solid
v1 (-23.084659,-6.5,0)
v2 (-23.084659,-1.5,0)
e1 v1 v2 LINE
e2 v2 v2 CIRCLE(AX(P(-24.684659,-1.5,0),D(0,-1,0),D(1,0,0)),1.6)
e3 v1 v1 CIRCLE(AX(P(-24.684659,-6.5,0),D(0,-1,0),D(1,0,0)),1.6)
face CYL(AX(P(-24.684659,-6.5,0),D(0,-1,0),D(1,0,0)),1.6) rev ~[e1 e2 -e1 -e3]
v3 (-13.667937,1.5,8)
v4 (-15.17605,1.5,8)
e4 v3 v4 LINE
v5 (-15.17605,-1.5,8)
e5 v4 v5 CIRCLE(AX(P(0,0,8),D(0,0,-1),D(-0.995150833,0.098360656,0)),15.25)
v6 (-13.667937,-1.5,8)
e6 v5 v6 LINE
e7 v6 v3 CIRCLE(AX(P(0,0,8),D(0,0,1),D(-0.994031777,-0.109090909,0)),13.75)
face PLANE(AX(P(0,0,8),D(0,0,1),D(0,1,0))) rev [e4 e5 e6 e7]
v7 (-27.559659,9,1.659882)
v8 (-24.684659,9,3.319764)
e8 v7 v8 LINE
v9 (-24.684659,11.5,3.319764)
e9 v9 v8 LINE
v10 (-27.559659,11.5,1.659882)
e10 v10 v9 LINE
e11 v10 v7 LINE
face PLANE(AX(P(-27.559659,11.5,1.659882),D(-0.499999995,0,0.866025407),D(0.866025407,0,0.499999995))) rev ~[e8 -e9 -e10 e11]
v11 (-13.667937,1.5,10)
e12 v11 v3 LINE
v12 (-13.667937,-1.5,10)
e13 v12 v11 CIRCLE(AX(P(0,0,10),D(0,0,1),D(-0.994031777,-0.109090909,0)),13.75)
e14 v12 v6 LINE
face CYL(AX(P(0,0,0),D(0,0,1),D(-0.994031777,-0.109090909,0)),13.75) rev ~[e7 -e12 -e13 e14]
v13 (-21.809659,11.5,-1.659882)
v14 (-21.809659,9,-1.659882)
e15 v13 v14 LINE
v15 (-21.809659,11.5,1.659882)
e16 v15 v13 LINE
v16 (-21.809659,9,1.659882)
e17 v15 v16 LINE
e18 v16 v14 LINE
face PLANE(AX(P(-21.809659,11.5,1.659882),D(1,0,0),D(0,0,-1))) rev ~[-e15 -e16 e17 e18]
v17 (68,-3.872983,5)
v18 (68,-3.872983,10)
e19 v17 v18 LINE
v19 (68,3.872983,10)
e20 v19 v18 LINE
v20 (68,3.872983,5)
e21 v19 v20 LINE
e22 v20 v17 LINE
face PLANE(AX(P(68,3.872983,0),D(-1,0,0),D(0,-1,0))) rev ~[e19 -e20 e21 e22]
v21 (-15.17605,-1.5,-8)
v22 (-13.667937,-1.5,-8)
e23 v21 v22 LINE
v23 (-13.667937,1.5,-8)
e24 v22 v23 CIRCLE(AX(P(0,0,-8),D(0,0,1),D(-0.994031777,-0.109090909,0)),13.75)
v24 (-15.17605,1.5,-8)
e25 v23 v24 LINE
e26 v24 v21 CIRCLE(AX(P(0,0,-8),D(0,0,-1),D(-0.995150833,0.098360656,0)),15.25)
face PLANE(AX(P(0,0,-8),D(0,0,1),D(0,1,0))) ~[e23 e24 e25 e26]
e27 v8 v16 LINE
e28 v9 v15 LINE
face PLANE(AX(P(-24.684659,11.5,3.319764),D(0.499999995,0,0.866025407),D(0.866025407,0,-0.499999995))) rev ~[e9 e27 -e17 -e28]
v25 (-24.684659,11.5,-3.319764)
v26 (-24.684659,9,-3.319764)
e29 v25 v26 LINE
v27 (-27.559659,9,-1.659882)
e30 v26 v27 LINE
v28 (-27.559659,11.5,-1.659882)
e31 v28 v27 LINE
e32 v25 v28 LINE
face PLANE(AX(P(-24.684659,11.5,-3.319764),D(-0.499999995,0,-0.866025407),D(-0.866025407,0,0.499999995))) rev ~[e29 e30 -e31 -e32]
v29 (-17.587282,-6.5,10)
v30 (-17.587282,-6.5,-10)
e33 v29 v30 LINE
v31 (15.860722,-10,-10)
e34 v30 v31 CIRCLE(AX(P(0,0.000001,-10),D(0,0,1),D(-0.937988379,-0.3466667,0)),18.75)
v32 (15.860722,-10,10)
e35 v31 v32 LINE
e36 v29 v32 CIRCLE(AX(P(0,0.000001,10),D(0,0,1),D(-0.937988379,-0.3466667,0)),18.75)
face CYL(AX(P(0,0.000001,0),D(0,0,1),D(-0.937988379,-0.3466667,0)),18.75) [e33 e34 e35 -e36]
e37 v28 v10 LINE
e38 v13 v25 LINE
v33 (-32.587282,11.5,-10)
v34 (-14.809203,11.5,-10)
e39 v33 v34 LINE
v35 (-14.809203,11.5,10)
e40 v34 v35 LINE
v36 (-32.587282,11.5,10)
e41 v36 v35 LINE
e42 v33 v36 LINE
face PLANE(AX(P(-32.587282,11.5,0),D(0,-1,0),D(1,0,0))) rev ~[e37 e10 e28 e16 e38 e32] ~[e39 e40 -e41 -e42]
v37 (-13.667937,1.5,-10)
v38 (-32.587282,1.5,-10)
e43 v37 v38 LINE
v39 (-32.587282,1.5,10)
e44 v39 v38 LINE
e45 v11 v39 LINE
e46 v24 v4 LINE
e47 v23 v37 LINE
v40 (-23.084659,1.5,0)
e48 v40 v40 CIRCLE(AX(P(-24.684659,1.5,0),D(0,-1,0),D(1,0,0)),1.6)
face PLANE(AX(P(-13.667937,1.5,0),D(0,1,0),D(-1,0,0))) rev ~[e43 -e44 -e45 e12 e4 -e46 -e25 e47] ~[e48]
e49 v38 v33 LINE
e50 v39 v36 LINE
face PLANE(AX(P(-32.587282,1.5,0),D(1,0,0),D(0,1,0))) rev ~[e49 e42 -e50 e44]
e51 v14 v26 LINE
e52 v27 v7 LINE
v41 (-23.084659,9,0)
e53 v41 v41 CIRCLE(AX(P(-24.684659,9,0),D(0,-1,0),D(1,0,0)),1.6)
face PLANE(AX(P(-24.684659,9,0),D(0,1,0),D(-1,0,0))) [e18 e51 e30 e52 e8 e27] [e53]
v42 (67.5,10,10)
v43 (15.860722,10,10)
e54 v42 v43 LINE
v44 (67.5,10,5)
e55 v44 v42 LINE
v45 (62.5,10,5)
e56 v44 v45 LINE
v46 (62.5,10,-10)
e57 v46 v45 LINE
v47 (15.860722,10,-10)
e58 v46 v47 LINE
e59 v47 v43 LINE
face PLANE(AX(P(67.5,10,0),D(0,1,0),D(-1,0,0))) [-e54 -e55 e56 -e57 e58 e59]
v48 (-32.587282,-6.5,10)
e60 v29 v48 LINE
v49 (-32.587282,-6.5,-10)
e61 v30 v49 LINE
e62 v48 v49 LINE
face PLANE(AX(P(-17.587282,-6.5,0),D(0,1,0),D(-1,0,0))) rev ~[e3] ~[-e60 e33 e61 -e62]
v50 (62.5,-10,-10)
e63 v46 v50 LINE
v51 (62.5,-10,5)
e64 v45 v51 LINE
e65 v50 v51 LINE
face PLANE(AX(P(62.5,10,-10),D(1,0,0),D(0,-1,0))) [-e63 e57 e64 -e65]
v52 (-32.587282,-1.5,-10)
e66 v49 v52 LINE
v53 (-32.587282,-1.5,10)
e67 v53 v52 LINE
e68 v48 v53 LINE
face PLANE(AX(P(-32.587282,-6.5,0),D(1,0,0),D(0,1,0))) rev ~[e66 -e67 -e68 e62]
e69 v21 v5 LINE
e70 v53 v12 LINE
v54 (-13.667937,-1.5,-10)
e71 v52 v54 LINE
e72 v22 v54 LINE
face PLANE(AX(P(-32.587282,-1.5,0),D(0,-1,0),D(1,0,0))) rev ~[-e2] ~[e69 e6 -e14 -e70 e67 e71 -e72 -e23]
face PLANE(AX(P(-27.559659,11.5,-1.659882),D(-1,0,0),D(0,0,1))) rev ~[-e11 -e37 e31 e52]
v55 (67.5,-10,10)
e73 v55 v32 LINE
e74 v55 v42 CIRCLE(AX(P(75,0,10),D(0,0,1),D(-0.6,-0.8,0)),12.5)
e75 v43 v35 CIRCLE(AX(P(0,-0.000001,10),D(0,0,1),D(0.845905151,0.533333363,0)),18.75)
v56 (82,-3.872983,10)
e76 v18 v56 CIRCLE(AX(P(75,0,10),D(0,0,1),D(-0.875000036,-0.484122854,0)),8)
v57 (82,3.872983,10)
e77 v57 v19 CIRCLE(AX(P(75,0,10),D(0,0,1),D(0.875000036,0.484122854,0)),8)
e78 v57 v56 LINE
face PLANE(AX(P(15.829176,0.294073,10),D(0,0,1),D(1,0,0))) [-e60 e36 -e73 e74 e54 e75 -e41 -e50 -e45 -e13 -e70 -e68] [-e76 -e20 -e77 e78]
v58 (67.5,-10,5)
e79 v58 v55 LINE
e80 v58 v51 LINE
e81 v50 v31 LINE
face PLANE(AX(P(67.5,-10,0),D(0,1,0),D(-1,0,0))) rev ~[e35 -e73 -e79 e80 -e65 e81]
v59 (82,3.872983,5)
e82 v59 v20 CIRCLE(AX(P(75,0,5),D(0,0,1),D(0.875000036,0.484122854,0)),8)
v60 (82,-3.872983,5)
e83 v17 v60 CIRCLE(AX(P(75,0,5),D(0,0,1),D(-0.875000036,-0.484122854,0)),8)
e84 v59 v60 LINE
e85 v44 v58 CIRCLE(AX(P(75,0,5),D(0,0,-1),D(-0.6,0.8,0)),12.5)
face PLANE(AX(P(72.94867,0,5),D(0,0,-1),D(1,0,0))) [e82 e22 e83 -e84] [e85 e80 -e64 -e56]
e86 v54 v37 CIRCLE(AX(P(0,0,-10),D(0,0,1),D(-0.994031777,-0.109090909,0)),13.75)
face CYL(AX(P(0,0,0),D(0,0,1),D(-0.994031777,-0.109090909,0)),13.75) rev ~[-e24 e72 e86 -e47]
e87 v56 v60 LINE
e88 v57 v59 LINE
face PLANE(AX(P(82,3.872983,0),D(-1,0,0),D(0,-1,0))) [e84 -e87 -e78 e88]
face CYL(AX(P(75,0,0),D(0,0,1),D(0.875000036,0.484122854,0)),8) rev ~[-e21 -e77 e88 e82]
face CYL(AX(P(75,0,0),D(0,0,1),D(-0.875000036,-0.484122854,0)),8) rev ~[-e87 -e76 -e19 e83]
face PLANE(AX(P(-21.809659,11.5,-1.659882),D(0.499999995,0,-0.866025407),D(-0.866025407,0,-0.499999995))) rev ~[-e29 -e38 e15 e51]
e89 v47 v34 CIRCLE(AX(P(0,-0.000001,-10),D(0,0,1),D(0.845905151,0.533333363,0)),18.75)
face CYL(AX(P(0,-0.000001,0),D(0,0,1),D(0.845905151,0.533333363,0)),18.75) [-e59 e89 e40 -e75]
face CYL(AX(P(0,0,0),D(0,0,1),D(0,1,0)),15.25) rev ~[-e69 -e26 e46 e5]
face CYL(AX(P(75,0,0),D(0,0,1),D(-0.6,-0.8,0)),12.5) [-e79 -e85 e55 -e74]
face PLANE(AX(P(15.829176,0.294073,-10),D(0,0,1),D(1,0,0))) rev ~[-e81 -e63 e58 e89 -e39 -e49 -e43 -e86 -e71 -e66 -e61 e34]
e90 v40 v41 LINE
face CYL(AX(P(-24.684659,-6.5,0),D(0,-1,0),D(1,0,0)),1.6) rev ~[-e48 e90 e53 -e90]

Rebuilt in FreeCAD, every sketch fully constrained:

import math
import FreeCAD as App
import Part
import Sketcher
from FreeCAD import Vector
Q = App.Units.Quantity

doc = App.newDocument("Part")
body = doc.addObject("PartDesign::Body", "Body")

sketch1 = doc.addObject("Sketcher::SketchObject", "Sketch")
body.addObject(sketch1)
sketch1.AttachmentSupport = (doc.XY_Plane, [""])
sketch1.MapMode = "FlatFace"
sketch1.addGeometry(Part.ArcOfCircle(Part.Circle(Vector(0, 0, 0), Vector(0, 0, 1), 18.8), math.radians(-160), math.radians(-32)), False)
sketch1.addGeometry(Part.LineSegment(Vector(15.9, -10, 0), Vector(67.5, -10, 0)), False)
sketch1.addGeometry(Part.ArcOfCircle(Part.Circle(Vector(75, 0, 0), Vector(0, 0, 1), 12.5), math.radians(-127), math.radians(127)), False)
sketch1.addGeometry(Part.LineSegment(Vector(67.5, 10, 0), Vector(15.9, 10, 0)), False)
sketch1.addGeometry(Part.ArcOfCircle(Part.Circle(Vector(0, 0, 0), Vector(0, 0, 1), 18.8), math.radians(32), math.radians(142)), False)
sketch1.addGeometry(Part.LineSegment(Vector(-14.8, 11.5, 0), Vector(-32.6, 11.5, 0)), False)
sketch1.addGeometry(Part.LineSegment(Vector(-32.6, 11.5, 0), Vector(-32.6, 1.5, 0)), False)
sketch1.addGeometry(Part.LineSegment(Vector(-32.6, 1.5, 0), Vector(-13.7, 1.5, 0)), False)
sketch1.addGeometry(Part.ArcOfCircle(Part.Circle(Vector(0, 0, 0), Vector(0, 0, 1), 13.8), math.radians(-174), math.radians(174)), False)
sketch1.addGeometry(Part.LineSegment(Vector(-13.7, -1.5, 0), Vector(-32.6, -1.5, 0)), False)
sketch1.addGeometry(Part.LineSegment(Vector(-32.6, -1.5, 0), Vector(-32.6, -6.5, 0)), False)
sketch1.addGeometry(Part.LineSegment(Vector(-32.6, -6.5, 0), Vector(-17.6, -6.5, 0)), False)
sketch1.addGeometry(Part.ArcOfCircle(Part.Circle(Vector(75, 0, 0), Vector(0, 0, 1), 8), math.radians(-151), math.radians(-29)), False)
sketch1.addGeometry(Part.LineSegment(Vector(68, -3.9, 0), Vector(68, 3.9, 0)), False)
sketch1.addGeometry(Part.ArcOfCircle(Part.Circle(Vector(75, 0, 0), Vector(0, 0, 1), 8), math.radians(29), math.radians(151)), False)
sketch1.addGeometry(Part.LineSegment(Vector(82, 3.9, 0), Vector(82, -3.9, 0)), False)
sketch1.addConstraint(Sketcher.Constraint("Coincident", 0, 2, 1, 1))
sketch1.addConstraint(Sketcher.Constraint("Coincident", 1, 2, 2, 1))
sketch1.addConstraint(Sketcher.Constraint("Coincident", 2, 2, 3, 1))
sketch1.addConstraint(Sketcher.Constraint("Coincident", 3, 2, 4, 1))
sketch1.addConstraint(Sketcher.Constraint("Coincident", 4, 2, 5, 1))
sketch1.addConstraint(Sketcher.Constraint("Coincident", 5, 2, 6, 1))
sketch1.addConstraint(Sketcher.Constraint("Coincident", 6, 2, 7, 1))
sketch1.addConstraint(Sketcher.Constraint("Coincident", 7, 2, 8, 2))
sketch1.addConstraint(Sketcher.Constraint("Coincident", 8, 1, 9, 1))
sketch1.addConstraint(Sketcher.Constraint("Coincident", 9, 2, 10, 1))
sketch1.addConstraint(Sketcher.Constraint("Coincident", 10, 2, 11, 1))
sketch1.addConstraint(Sketcher.Constraint("Coincident", 11, 2, 0, 1))
sketch1.addConstraint(Sketcher.Constraint("Coincident", 12, 1, 13, 1))
sketch1.addConstraint(Sketcher.Constraint("Coincident", 13, 2, 14, 2))
sketch1.addConstraint(Sketcher.Constraint("Coincident", 14, 1, 15, 1))
sketch1.addConstraint(Sketcher.Constraint("Coincident", 15, 2, 12, 2))
sketch1.addConstraint(Sketcher.Constraint("Horizontal", 1))
sketch1.addConstraint(Sketcher.Constraint("Horizontal", 3))
sketch1.addConstraint(Sketcher.Constraint("Horizontal", 5))
sketch1.addConstraint(Sketcher.Constraint("Vertical", 6))
sketch1.addConstraint(Sketcher.Constraint("Horizontal", 7))
sketch1.addConstraint(Sketcher.Constraint("Horizontal", 9))
sketch1.addConstraint(Sketcher.Constraint("Vertical", 10))
sketch1.addConstraint(Sketcher.Constraint("Horizontal", 11))
sketch1.addConstraint(Sketcher.Constraint("Vertical", 13))
sketch1.addConstraint(Sketcher.Constraint("Vertical", 15))
sketch1.addConstraint(Sketcher.Constraint("Coincident", 0, 3, -1, 1))
sketch1.addConstraint(Sketcher.Constraint("Coincident", 4, 3, -1, 1))
sketch1.addConstraint(Sketcher.Constraint("Coincident", 8, 3, -1, 1))
sketch1.addConstraint(Sketcher.Constraint("Coincident", 12, 3, 2, 3))
sketch1.addConstraint(Sketcher.Constraint("Coincident", 14, 3, 2, 3))
sketch1.addConstraint(Sketcher.Constraint("Equal", 0, 4))
sketch1.addConstraint(Sketcher.Constraint("Equal", 12, 14))
sketch1.addConstraint(Sketcher.Constraint("Symmetric", 1, 2, 2, 2, -1))
sketch1.addConstraint(Sketcher.Constraint("Symmetric", 6, 2, 9, 2, -1))
sketch1.addConstraint(Sketcher.Constraint("Horizontal", 13, 2, 14, 1))
sketch1.addConstraint(Sketcher.Constraint("Radius", 12, Q("8 mm")))
sketch1.addConstraint(Sketcher.Constraint("Radius", 2, Q("12.5 mm")))
sketch1.addConstraint(Sketcher.Constraint("DistanceX", 11, 1, 11, 2, Q("15 mm")))
sketch1.addConstraint(Sketcher.Constraint("DistanceY", 6, 2, 6, 1, Q("10 mm")))
sketch1.addConstraint(Sketcher.Constraint("DistanceY", 10, 2, 10, 1, Q("5 mm")))
sketch1.addConstraint(Sketcher.Constraint("Radius", 0, Q("18.75 mm")))
sketch1.addConstraint(Sketcher.Constraint("Radius", 8, Q("13.75 mm")))
sketch1.addConstraint(Sketcher.Constraint("DistanceX", -1, 1, 2, 3, Q("75 mm")))
sketch1.addConstraint(Sketcher.Constraint("DistanceY", 0, 2, -1, 1, Q("10 mm")))
sketch1.addConstraint(Sketcher.Constraint("DistanceX", -1, 1, 12, 1, Q("68 mm")))
sketch1.addConstraint(Sketcher.Constraint("DistanceY", 8, 1, 7, 2, Q("3 mm")))
pad1 = doc.addObject("PartDesign::Pad", "Pad")
body.addObject(pad1)
pad1.Profile = sketch1
pad1.Length = 20
pad1.Midplane = True

sketch2 = doc.addObject("Sketcher::SketchObject", "Sketch001")
body.addObject(sketch2)
sketch2.AttachmentSupport = (doc.XZ_Plane, [""])
sketch2.MapMode = "FlatFace"
sketch2.AttachmentOffset = App.Placement(Vector(0, 0, 6.5), App.Rotation())
sketch2.addGeometry(Part.Circle(Vector(-24.7, 0, 0), Vector(0, 0, 1), 1.6), False)
sketch2.addConstraint(Sketcher.Constraint("PointOnObject", 0, 3, -1))
sketch2.addConstraint(Sketcher.Constraint("Diameter", 0, Q("3.2 mm")))
sketch2.addConstraint(Sketcher.Constraint("DistanceX", 0, 3, -1, 1, Q("24.684659 mm")))
pocket1 = doc.addObject("PartDesign::Pocket", "Pocket")
body.addObject(pocket1)
pocket1.Profile = sketch2
pocket1.Type = "ThroughAll"

sketch3 = doc.addObject("Sketcher::SketchObject", "Sketch002")
body.addObject(sketch3)
sketch3.AttachmentSupport = (doc.XZ_Plane, [""])
sketch3.MapMode = "FlatFace"
sketch3.AttachmentOffset = App.Placement(Vector(0, 0, 12.5), App.Rotation())
sketch3.addGeometry(Part.LineSegment(Vector(100.1, 3.5, 0), Vector(97.1, 1.7, 0)), False)
sketch3.addGeometry(Part.LineSegment(Vector(97.1, 1.7, 0), Vector(97.1, -1.7, 0)), False)
sketch3.addGeometry(Part.LineSegment(Vector(97.1, -1.7, 0), Vector(100.1, -3.5, 0)), False)
sketch3.addGeometry(Part.LineSegment(Vector(100.1, -3.5, 0), Vector(103.1, -1.7, 0)), False)
sketch3.addGeometry(Part.LineSegment(Vector(103.1, -1.7, 0), Vector(103.1, 1.7, 0)), False)
sketch3.addGeometry(Part.LineSegment(Vector(103.1, 1.7, 0), Vector(100.1, 3.5, 0)), False)
sketch3.addConstraint(Sketcher.Constraint("Coincident", 0, 2, 1, 1))
sketch3.addConstraint(Sketcher.Constraint("Coincident", 1, 2, 2, 1))
sketch3.addConstraint(Sketcher.Constraint("Coincident", 2, 2, 3, 1))
sketch3.addConstraint(Sketcher.Constraint("Coincident", 3, 2, 4, 1))
sketch3.addConstraint(Sketcher.Constraint("Coincident", 4, 2, 5, 1))
sketch3.addConstraint(Sketcher.Constraint("Coincident", 5, 2, 0, 1))
sketch3.addConstraint(Sketcher.Constraint("Vertical", 1))
sketch3.addConstraint(Sketcher.Constraint("Vertical", 4))
sketch3.addConstraint(Sketcher.Constraint("Symmetric", 2, 2, 5, 2, -1))
sketch3.addConstraint(Sketcher.Constraint("Parallel", 0, 3))
sketch3.addConstraint(Sketcher.Constraint("Parallel", 2, 5))
sketch3.addConstraint(Sketcher.Constraint("Horizontal", 1, 2, 3, 2))
sketch3.addConstraint(Sketcher.Constraint("Horizontal", 0, 2, 4, 2))
sketch3.addConstraint(Sketcher.Constraint("Angle", 0, Q("-149.999997 deg")))
sketch3.addConstraint(Sketcher.Constraint("DistanceX", 1, 2, 2, 2, Q("3 mm")))
sketch3.addConstraint(Sketcher.Constraint("DistanceY", 1, 2, 1, 1, Q("3.464102 mm")))
sketch3.addConstraint(Sketcher.Constraint("DistanceX", -1, 1, 0, 2, Q("97.061388 mm")))
pocket2 = doc.addObject("PartDesign::Pocket", "Pocket001")
body.addObject(pocket2)
pocket2.Profile = sketch3
pocket2.Length = 5

sketch4 = doc.addObject("Sketcher::SketchObject", "Sketch003")
body.addObject(sketch4)
sketch4.AttachmentSupport = (doc.YZ_Plane, [""])
sketch4.MapMode = "FlatFace"
sketch4.addGeometry(Part.LineSegment(Vector(0, 8, 0), Vector(0, -8, 0)), False)
sketch4.addGeometry(Part.LineSegment(Vector(0, -8, 0), Vector(15, -8, 0)), False)
sketch4.addGeometry(Part.LineSegment(Vector(15, -8, 0), Vector(15, 8, 0)), False)
sketch4.addGeometry(Part.LineSegment(Vector(15, 8, 0), Vector(0, 8, 0)), False)
sketch4.addConstraint(Sketcher.Constraint("Coincident", 0, 2, 1, 1))
sketch4.addConstraint(Sketcher.Constraint("Coincident", 1, 2, 2, 1))
sketch4.addConstraint(Sketcher.Constraint("Coincident", 2, 2, 3, 1))
sketch4.addConstraint(Sketcher.Constraint("Coincident", 3, 2, 0, 1))
sketch4.addConstraint(Sketcher.Constraint("Vertical", 0))
sketch4.addConstraint(Sketcher.Constraint("Horizontal", 1))
sketch4.addConstraint(Sketcher.Constraint("Vertical", 2))
sketch4.addConstraint(Sketcher.Constraint("Horizontal", 3))
sketch4.addConstraint(Sketcher.Constraint("Symmetric", 0, 2, 3, 2, -1, 1))
sketch4.addConstraint(Sketcher.Constraint("DistanceY", 0, 2, 0, 1, Q("16 mm")))
sketch4.addConstraint(Sketcher.Constraint("DistanceX", 1, 1, 1, 2, Q("15.25 mm")))
groove = doc.addObject("PartDesign::Groove", "Groove")
body.addObject(groove)
groove.Profile = sketch4
groove.ReferenceAxis = (sketch4, ["V_Axis"])
groove.Angle = 360

sketch5 = doc.addObject("Sketcher::SketchObject", "Sketch004")
body.addObject(sketch5)
sketch5.AttachmentSupport = (doc.XY_Plane, [""])
sketch5.MapMode = "FlatFace"
sketch5.AttachmentOffset = App.Placement(Vector(0, 0, -10), App.Rotation())
sketch5.addGeometry(Part.ArcOfCircle(Part.Circle(Vector(75, 0, 0), Vector(0, 0, 1), 12), math.radians(-127), math.radians(127)), False)
sketch5.addGeometry(Part.LineSegment(Vector(68, -10, 0), Vector(62, -10, 0)), False)
sketch5.addGeometry(Part.LineSegment(Vector(62, -10, 0), Vector(62, 10, 0)), False)
sketch5.addGeometry(Part.LineSegment(Vector(62, 10, 0), Vector(68, 10, 0)), False)
sketch5.addConstraint(Sketcher.Constraint("Coincident", 0, 1, 1, 1))
sketch5.addConstraint(Sketcher.Constraint("Coincident", 1, 2, 2, 1))
sketch5.addConstraint(Sketcher.Constraint("Coincident", 2, 2, 3, 1))
sketch5.addConstraint(Sketcher.Constraint("Coincident", 3, 2, 0, 2))
sketch5.addConstraint(Sketcher.Constraint("Horizontal", 1))
sketch5.addConstraint(Sketcher.Constraint("Vertical", 2))
sketch5.addConstraint(Sketcher.Constraint("Horizontal", 3))
sketch5.addConstraint(Sketcher.Constraint("Symmetric", 0, 1, 3, 2, -1))
sketch5.addConstraint(Sketcher.Constraint("Radius", 0, Q("12.5 mm")))
sketch5.addConstraint(Sketcher.Constraint("DistanceX", 1, 2, 1, 1, Q("5 mm")))
sketch5.addConstraint(Sketcher.Constraint("DistanceY", 2, 1, 2, 2, Q("20 mm")))
sketch5.addConstraint(Sketcher.Constraint("DistanceX", -1, 1, 0, 3, Q("75 mm")))
pocket3 = doc.addObject("PartDesign::Pocket", "Pocket002")
body.addObject(pocket3)
pocket3.Profile = sketch5
pocket3.Length = 15
pocket3.Reversed = True

sketch6 = doc.addObject("Sketcher::SketchObject", "Sketch005")
body.addObject(sketch6)
sketch6.AttachmentSupport = (doc.XZ_Plane, [""])
sketch6.MapMode = "FlatFace"
sketch6.AttachmentOffset = App.Placement(Vector(0, 0, -11.5), App.Rotation())
sketch6.addGeometry(Part.LineSegment(Vector(-24.7, 3.3, 0), Vector(-21.8, 1.7, 0)), False)
sketch6.addGeometry(Part.LineSegment(Vector(-21.8, 1.7, 0), Vector(-21.8, -1.7, 0)), False)
sketch6.addGeometry(Part.LineSegment(Vector(-21.8, -1.7, 0), Vector(-24.7, -3.3, 0)), False)
sketch6.addGeometry(Part.LineSegment(Vector(-24.7, -3.3, 0), Vector(-27.6, -1.7, 0)), False)
sketch6.addGeometry(Part.LineSegment(Vector(-27.6, -1.7, 0), Vector(-27.6, 1.7, 0)), False)
sketch6.addGeometry(Part.LineSegment(Vector(-27.6, 1.7, 0), Vector(-24.7, 3.3, 0)), False)
sketch6.addConstraint(Sketcher.Constraint("Coincident", 0, 2, 1, 1))
sketch6.addConstraint(Sketcher.Constraint("Coincident", 1, 2, 2, 1))
sketch6.addConstraint(Sketcher.Constraint("Coincident", 2, 2, 3, 1))
sketch6.addConstraint(Sketcher.Constraint("Coincident", 3, 2, 4, 1))
sketch6.addConstraint(Sketcher.Constraint("Coincident", 4, 2, 5, 1))
sketch6.addConstraint(Sketcher.Constraint("Coincident", 5, 2, 0, 1))
sketch6.addConstraint(Sketcher.Constraint("Vertical", 1))
sketch6.addConstraint(Sketcher.Constraint("Vertical", 4))
sketch6.addConstraint(Sketcher.Constraint("Symmetric", 2, 2, 5, 2, -1))
sketch6.addConstraint(Sketcher.Constraint("Parallel", 0, 3))
sketch6.addConstraint(Sketcher.Constraint("Parallel", 2, 5))
sketch6.addConstraint(Sketcher.Constraint("Horizontal", 1, 2, 3, 2))
sketch6.addConstraint(Sketcher.Constraint("Horizontal", 0, 2, 4, 2))
sketch6.addConstraint(Sketcher.Constraint("Angle", 0, Q("-30 deg")))
sketch6.addConstraint(Sketcher.Constraint("DistanceX", 3, 2, 1, 2, Q("5.75 mm")))
sketch6.addConstraint(Sketcher.Constraint("DistanceY", 1, 2, 1, 1, Q("3.319764 mm")))
sketch6.addConstraint(Sketcher.Constraint("DistanceX", 0, 2, -1, 1, Q("21.809659 mm")))
pocket4 = doc.addObject("PartDesign::Pocket", "Pocket003")
body.addObject(pocket4)
pocket4.Profile = sketch6
pocket4.Length = 2.5
pocket4.Reversed = True

doc.recompute()
